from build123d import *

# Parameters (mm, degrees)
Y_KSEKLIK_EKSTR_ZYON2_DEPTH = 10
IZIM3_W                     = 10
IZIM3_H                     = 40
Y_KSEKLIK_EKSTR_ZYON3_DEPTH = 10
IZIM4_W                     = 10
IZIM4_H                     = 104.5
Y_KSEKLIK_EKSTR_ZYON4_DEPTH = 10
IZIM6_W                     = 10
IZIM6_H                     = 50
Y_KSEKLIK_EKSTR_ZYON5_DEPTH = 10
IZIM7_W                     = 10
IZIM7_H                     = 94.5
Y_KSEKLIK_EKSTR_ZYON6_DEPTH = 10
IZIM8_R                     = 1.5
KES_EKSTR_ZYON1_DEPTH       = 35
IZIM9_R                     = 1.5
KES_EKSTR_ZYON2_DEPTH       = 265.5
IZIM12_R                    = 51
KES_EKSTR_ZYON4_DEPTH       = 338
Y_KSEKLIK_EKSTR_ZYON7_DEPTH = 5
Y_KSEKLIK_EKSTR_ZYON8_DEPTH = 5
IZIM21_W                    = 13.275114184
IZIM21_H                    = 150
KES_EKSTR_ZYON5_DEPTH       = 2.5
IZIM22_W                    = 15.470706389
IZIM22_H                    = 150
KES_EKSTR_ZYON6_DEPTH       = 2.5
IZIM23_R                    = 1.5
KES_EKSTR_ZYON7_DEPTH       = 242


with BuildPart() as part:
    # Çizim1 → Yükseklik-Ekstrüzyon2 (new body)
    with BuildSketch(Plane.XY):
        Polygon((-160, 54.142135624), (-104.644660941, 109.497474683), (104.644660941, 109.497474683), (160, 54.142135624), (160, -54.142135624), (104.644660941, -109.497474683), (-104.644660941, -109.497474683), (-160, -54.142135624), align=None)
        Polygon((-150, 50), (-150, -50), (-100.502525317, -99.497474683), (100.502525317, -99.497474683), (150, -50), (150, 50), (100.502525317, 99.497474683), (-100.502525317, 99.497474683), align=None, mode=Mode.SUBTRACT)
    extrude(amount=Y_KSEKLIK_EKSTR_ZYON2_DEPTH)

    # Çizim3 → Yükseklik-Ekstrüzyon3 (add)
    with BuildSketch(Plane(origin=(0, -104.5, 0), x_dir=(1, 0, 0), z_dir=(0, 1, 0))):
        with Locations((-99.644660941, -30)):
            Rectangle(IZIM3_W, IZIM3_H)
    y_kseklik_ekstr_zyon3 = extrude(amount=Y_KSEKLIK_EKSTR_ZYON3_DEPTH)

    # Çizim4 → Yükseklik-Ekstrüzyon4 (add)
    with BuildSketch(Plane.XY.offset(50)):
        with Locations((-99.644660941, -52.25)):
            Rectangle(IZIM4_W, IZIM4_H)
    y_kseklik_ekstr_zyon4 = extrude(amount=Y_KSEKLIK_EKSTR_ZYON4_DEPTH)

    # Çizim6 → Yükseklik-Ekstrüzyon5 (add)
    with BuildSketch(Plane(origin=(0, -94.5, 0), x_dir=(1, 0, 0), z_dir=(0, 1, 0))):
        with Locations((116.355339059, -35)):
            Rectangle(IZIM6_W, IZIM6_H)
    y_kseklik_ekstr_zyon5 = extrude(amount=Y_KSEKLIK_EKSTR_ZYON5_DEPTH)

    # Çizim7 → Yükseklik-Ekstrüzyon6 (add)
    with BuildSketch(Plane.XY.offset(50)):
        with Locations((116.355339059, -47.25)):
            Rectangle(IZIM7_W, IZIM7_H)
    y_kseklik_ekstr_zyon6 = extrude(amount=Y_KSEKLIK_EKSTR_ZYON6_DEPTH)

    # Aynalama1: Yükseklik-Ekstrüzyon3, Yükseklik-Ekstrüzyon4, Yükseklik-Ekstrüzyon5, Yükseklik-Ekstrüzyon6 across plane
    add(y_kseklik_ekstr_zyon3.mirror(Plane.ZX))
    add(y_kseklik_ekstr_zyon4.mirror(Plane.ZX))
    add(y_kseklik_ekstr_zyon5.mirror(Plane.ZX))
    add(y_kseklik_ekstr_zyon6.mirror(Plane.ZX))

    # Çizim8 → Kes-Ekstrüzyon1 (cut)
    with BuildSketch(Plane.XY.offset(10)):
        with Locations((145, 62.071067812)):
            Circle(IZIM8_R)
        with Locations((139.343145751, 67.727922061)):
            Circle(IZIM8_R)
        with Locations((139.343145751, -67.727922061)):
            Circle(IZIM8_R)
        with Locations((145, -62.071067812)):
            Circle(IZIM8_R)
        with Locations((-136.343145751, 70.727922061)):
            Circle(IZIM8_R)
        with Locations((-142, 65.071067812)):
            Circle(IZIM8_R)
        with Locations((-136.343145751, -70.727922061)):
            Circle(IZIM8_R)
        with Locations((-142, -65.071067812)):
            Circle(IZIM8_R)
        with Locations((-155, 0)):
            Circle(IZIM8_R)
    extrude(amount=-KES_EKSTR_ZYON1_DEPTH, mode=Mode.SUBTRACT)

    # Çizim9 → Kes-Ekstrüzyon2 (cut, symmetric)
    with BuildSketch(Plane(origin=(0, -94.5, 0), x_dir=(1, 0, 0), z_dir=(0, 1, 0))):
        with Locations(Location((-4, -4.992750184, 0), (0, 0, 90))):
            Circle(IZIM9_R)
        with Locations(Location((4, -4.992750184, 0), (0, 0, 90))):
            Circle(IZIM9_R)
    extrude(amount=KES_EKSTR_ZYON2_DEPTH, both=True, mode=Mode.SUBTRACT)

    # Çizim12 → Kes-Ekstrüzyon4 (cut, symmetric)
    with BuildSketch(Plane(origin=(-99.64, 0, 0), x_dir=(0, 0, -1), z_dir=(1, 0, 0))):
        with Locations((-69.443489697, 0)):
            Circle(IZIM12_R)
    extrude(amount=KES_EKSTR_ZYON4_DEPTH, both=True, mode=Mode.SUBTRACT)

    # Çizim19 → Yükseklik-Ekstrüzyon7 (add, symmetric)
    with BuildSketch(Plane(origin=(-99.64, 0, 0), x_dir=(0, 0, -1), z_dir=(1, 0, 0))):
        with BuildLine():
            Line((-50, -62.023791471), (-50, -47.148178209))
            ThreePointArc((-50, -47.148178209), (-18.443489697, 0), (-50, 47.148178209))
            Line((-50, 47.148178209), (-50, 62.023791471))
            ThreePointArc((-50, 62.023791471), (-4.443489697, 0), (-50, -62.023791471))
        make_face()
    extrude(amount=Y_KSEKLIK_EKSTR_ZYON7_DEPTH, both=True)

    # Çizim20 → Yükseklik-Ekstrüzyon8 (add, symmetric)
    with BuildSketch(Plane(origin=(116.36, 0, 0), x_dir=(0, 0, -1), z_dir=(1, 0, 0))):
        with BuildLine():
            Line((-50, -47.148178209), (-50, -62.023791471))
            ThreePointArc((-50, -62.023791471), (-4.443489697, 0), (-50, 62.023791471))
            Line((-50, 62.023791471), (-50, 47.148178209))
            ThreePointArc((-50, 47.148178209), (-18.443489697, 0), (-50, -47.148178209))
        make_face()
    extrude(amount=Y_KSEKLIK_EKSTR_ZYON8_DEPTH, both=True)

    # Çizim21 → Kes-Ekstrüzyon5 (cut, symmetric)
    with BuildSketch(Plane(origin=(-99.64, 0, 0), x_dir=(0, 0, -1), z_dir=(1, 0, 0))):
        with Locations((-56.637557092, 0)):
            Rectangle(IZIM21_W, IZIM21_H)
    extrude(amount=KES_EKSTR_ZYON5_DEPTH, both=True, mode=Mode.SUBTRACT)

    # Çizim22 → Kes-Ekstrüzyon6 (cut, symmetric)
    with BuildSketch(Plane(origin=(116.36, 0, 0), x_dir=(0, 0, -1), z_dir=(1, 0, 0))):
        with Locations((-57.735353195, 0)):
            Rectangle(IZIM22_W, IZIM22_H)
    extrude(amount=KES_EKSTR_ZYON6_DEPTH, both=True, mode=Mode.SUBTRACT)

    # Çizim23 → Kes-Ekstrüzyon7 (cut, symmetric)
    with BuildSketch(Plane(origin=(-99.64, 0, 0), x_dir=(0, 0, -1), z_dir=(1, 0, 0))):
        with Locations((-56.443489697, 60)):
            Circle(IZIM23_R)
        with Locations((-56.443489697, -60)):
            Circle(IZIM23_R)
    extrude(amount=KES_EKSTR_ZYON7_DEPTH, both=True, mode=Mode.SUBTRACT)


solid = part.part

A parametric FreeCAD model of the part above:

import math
import FreeCAD as App
import Part
import Sketcher

doc = App.newDocument("Part")
params = doc.addObject("Spreadsheet::Sheet", "Params")
for row, (alias, value) in enumerate([
    ("sketch1_height", "100 mm"),
    ("sketch1_length", "70 mm"),
    ("pad1_length", "10 mm"),
    ("sketch2_width", "10 mm"),
    ("sketch2_height", "40 mm"),
    ("pad2_length", "10 mm"),
    ("sketch3_width", "10 mm"),
    ("sketch3_height", "104.5 mm"),
    ("pad3_length", "10 mm"),
    ("sketch4_width", "10 mm"),
    ("sketch4_height", "50 mm"),
    ("pad4_length", "10 mm"),
    ("sketch5_width", "10 mm"),
    ("sketch5_height", "94.5 mm"),
    ("pad5_length", "10 mm"),
    ("sketch6_diameter", "3 mm"),
    ("pocket1_length", "35 mm"),
    ("sketch7_diameter", "3 mm"),
    ("pocket2_length", "531 mm"),
    ("sketch8_diameter", "102 mm"),
    ("pocket3_length", "676 mm"),
    ("sketch9_radius", "65 mm"),
    ("sketch9_radius2", "51 mm"),
    ("pad6_length", "10 mm"),
    ("sketch10_radius", "65 mm"),
    ("sketch10_radius2", "51 mm"),
    ("pad7_length", "10 mm"),
    ("sketch11_width", "150 mm"),
    ("pocket4_length", "5 mm"),
    ("sketch12_width", "150 mm"),
    ("pocket5_length", "5 mm"),
    ("sketch13_diameter", "3 mm"),
    ("pocket6_length", "484 mm"),
], start=1):
    params.set(f"A{row}", alias)
    params.set(f"B{row}", "=" + value)
    params.setAlias(f"B{row}", alias)

body = doc.addObject("PartDesign::Body", "Body")

# Sketch on XY plane
sketch1 = doc.addObject("Sketcher::SketchObject", "Sketch")
body.addObject(sketch1)
sketch1.AttachmentSupport = (doc.XY_Plane, [""])
sketch1.MapMode = "FlatFace"
sketch1.addGeometry([
    Part.LineSegment(App.Vector(-104.644661, 109.497475, 0), App.Vector(-160, 54.142136, 0)),  # 0
    Part.LineSegment(App.Vector(-160, 54.142136, 0), App.Vector(-160, -54.142136, 0)),  # 1
    Part.LineSegment(App.Vector(-160, -54.142136, 0), App.Vector(-104.644661, -109.497475, 0)),  # 2
    Part.LineSegment(App.Vector(-104.644661, -109.497475, 0), App.Vector(104.644661, -109.497475, 0)),  # 3
    Part.LineSegment(App.Vector(104.644661, -109.497475, 0), App.Vector(160, -54.142136, 0)),  # 4
    Part.LineSegment(App.Vector(160, -54.142136, 0), App.Vector(160, 54.142136, 0)),  # 5
    Part.LineSegment(App.Vector(160, 54.142136, 0), App.Vector(104.644661, 109.497475, 0)),  # 6
    Part.LineSegment(App.Vector(104.644661, 109.497475, 0), App.Vector(-104.644661, 109.497475, 0)),  # 7
    Part.LineSegment(App.Vector(-150, 50, 0), App.Vector(-100.502525, 99.497475, 0)),  # 8
    Part.LineSegment(App.Vector(-100.502525, 99.497475, 0), App.Vector(100.502525, 99.497475, 0)),  # 9
    Part.LineSegment(App.Vector(100.502525, 99.497475, 0), App.Vector(150, 50, 0)),  # 10
    Part.LineSegment(App.Vector(150, 50, 0), App.Vector(150, -50, 0)),  # 11
    Part.LineSegment(App.Vector(150, -50, 0), App.Vector(100.502525, -99.497475, 0)),  # 12
    Part.LineSegment(App.Vector(100.502525, -99.497475, 0), App.Vector(-100.502525, -99.497475, 0)),  # 13
    Part.LineSegment(App.Vector(-100.502525, -99.497475, 0), App.Vector(-150, -50, 0)),  # 14
    Part.LineSegment(App.Vector(-150, -50, 0), App.Vector(-150, 50, 0)),  # 15
], False)
sketch1.addConstraint([
    Sketcher.Constraint("Coincident", 0, 2, 1, 1),
    Sketcher.Constraint("Coincident", 1, 2, 2, 1),
    Sketcher.Constraint("Coincident", 2, 2, 3, 1),
    Sketcher.Constraint("Coincident", 3, 2, 4, 1),
    Sketcher.Constraint("Coincident", 4, 2, 5, 1),
    Sketcher.Constraint("Coincident", 5, 2, 6, 1),
    Sketcher.Constraint("Coincident", 6, 2, 7, 1),
    Sketcher.Constraint("Coincident", 7, 2, 0, 1),
    Sketcher.Constraint("Coincident", 8, 2, 9, 1),
    Sketcher.Constraint("Coincident", 9, 2, 10, 1),
    Sketcher.Constraint("Coincident", 10, 2, 11, 1),
    Sketcher.Constraint("Coincident", 11, 2, 12, 1),
    Sketcher.Constraint("Coincident", 12, 2, 13, 1),
    Sketcher.Constraint("Coincident", 13, 2, 14, 1),
    Sketcher.Constraint("Coincident", 14, 2, 15, 1),
    Sketcher.Constraint("Coincident", 15, 2, 8, 1),
    Sketcher.Constraint("Vertical", 1),
    Sketcher.Constraint("Horizontal", 3),
    Sketcher.Constraint("Vertical", 5),
    Sketcher.Constraint("Horizontal", 7),
    Sketcher.Constraint("Horizontal", 9),
    Sketcher.Constraint("Vertical", 11),
    Sketcher.Constraint("Horizontal", 13),
    Sketcher.Constraint("Vertical", 15),
    Sketcher.Constraint("Symmetric", 0, 2, 4, 2, -1, 1),
    Sketcher.Constraint("Symmetric", 2, 2, 6, 2, -1, 1),
    Sketcher.Constraint("Symmetric", 8, 2, 12, 2, -1, 1),
    Sketcher.Constraint("Symmetric", 10, 2, 14, 2, -1, 1),
    Sketcher.Constraint("Perpendicular", 0, 2),
    Sketcher.Constraint("Perpendicular", 2, 4),
    Sketcher.Constraint("Perpendicular", 4, 6),
    Sketcher.Constraint("Perpendicular", 6, 8),
    Sketcher.Constraint("Perpendicular", 8, 10),
    Sketcher.Constraint("Perpendicular", 10, 12),
    Sketcher.Constraint("Perpendicular", 12, 14),
    Sketcher.Constraint("Horizontal", 1, 2, 4, 2),
    Sketcher.Constraint("Horizontal", 11, 2, 14, 2),
    Sketcher.Constraint("Vertical", 3, 2, 6, 2),
    Sketcher.Constraint("DistanceY", 11, 2, 11, 1, 100.0),
    Sketcher.Constraint("Distance", 8, 70.0),
    Sketcher.Constraint("DistanceX", 0, 2, -1, 1, 160.0),
    Sketcher.Constraint("DistanceX", -1, 1, 10, 2, 150.0),
    Sketcher.Constraint("DistanceY", 8, 2, 7, 2, 10.0),
    Sketcher.Constraint("DistanceX", 3, 1, 3, 2, 209.289322),
])
sketch1.setExpression("Constraints[38]", "Params.sketch1_height")
sketch1.setExpression("Constraints[39]", "Params.sketch1_length")
pad1 = doc.addObject("PartDesign::Pad", "Pad")
body.addObject(pad1)
pad1.Profile = sketch1
pad1.setExpression("Length", "Params.pad1_length")

# Sketch on XZ plane
sketch2 = doc.addObject("Sketcher::SketchObject", "Sketch001")
body.addObject(sketch2)
sketch2.AttachmentSupport = (doc.XZ_Plane, [""])
sketch2.MapMode = "FlatFace"
sketch2.AttachmentOffset = App.Placement(App.Vector(0, 0, 104.5), App.Rotation())
sketch2.addGeometry([
    Part.LineSegment(App.Vector(-104.644661, 10, 0), App.Vector(-104.644661, 50, 0)),
    Part.LineSegment(App.Vector(-104.644661, 50, 0), App.Vector(-94.644661, 50, 0)),
    Part.LineSegment(App.Vector(-94.644661, 50, 0), App.Vector(-94.644661, 10, 0)),
    Part.LineSegment(App.Vector(-94.644661, 10, 0), App.Vector(-104.644661, 10, 0)),
], False)
sketch2.addConstraint([
    Sketcher.Constraint("Coincident", 0, 2, 1, 1),
    Sketcher.Constraint("Coincident", 1, 2, 2, 1),
    Sketcher.Constraint("Coincident", 2, 2, 3, 1),
    Sketcher.Constraint("Coincident", 3, 2, 0, 1),
    Sketcher.Constraint("Vertical", 0),
    Sketcher.Constraint("Horizontal", 1),
    Sketcher.Constraint("Vertical", 2),
    Sketcher.Constraint("Horizontal", 3),
    Sketcher.Constraint("DistanceX", 1, 1, 1, 2, 10.0),
    Sketcher.Constraint("DistanceY", 0, 1, 0, 2, 40.0),
    Sketcher.Constraint("DistanceY", -1, 1, 0, 2, 50.0),
    Sketcher.Constraint("DistanceX", 0, 2, -1, 1, 104.644661),
])
sketch2.setExpression("Constraints[8]", "Params.sketch2_width")
sketch2.setExpression("Constraints[9]", "Params.sketch2_height")
pad2 = doc.addObject("PartDesign::Pad", "Pad001")
body.addObject(pad2)
pad2.Profile = sketch2
pad2.setExpression("Length", "Params.pad2_length")
pad2.Reversed = True

# Sketch on XY plane
sketch3 = doc.addObject("Sketcher::SketchObject", "Sketch002")
body.addObject(sketch3)
sketch3.AttachmentSupport = (doc.XY_Plane, [""])
sketch3.MapMode = "FlatFace"
sketch3.AttachmentOffset = App.Placement(App.Vector(0, 0, 50), App.Rotation())
sketch3.addGeometry([
    Part.LineSegment(App.Vector(-104.644661, 0, 0), App.Vector(-104.644661, -104.5, 0)),
    Part.LineSegment(App.Vector(-104.644661, -104.5, 0), App.Vector(-94.644661, -104.5, 0)),
    Part.LineSegment(App.Vector(-94.644661, -104.5, 0), App.Vector(-94.644661, 0, 0)),
    Part.LineSegment(App.Vector(-94.644661, 0, 0), App.Vector(-104.644661, 0, 0)),
], False)
sketch3.addConstraint([
    Sketcher.Constraint("Coincident", 0, 2, 1, 1),
    Sketcher.Constraint("Coincident", 1, 2, 2, 1),
    Sketcher.Constraint("Coincident", 2, 2, 3, 1),
    Sketcher.Constraint("Coincident", 3, 2, 0, 1),
    Sketcher.Constraint("Vertical", 0),
    Sketcher.Constraint("Horizontal", 1),
    Sketcher.Constraint("Vertical", 2),
    Sketcher.Constraint("Horizontal", 3),
    Sketcher.Constraint("PointOnObject", 2, 2, -1),
    Sketcher.Constraint("DistanceX", 1, 1, 1, 2, 10.0),
    Sketcher.Constraint("DistanceY", 0, 2, 0, 1, 104.5),
    Sketcher.Constraint("DistanceX", 0, 2, -1, 1, 104.644661),
])
sketch3.setExpression("Constraints[9]", "Params.sketch3_width")
sketch3.setExpression("Constraints[10]", "Params.sketch3_height")
pad3 = doc.addObject("PartDesign::Pad", "Pad002")
body.addObject(pad3)
pad3.Profile = sketch3
pad3.setExpression("Length", "Params.pad3_length")

# Sketch on XZ plane
sketch4 = doc.addObject("Sketcher::SketchObject", "Sketch003")
body.addObject(sketch4)
sketch4.AttachmentSupport = (doc.XZ_Plane, [""])
sketch4.MapMode = "FlatFace"
sketch4.AttachmentOffset = App.Placement(App.Vector(0, 0, 94.5), App.Rotation())
sketch4.addGeometry([
    Part.LineSegment(App.Vector(111.355339, 10, 0), App.Vector(111.355339, 60, 0)),
    Part.LineSegment(App.Vector(111.355339, 60, 0), App.Vector(121.355339, 60, 0)),
    Part.LineSegment(App.Vector(121.355339, 60, 0), App.Vector(121.355339, 10, 0)),
    Part.LineSegment(App.Vector(121.355339, 10, 0), App.Vector(111.355339, 10, 0)),
], False)
sketch4.addConstraint([
    Sketcher.Constraint("Coincident", 0, 2, 1, 1),
    Sketcher.Constraint("Coincident", 1, 2, 2, 1),
    Sketcher.Constraint("Coincident", 2, 2, 3, 1),
    Sketcher.Constraint("Coincident", 3, 2, 0, 1),
    Sketcher.Constraint("Vertical", 0),
    Sketcher.Constraint("Horizontal", 1),
    Sketcher.Constraint("Vertical", 2),
    Sketcher.Constraint("Horizontal", 3),
    Sketcher.Constraint("DistanceX", 1, 1, 1, 2, 10.0),
    Sketcher.Constraint("DistanceY", 0, 1, 0, 2, 50.0),
    Sketcher.Constraint("DistanceY", -1, 1, 0, 2, 60.0),
    Sketcher.Constraint("DistanceX", -1, 1, 0, 2, 111.355339),
])
sketch4.setExpression("Constraints[8]", "Params.sketch4_width")
sketch4.setExpression("Constraints[9]", "Params.sketch4_height")
pad4 = doc.addObject("PartDesign::Pad", "Pad003")
body.addObject(pad4)
pad4.Profile = sketch4
pad4.setExpression("Length", "Params.pad4_length")
pad4.Reversed = True

# Sketch on XY plane
sketch5 = doc.addObject("Sketcher::SketchObject", "Sketch004")
body.addObject(sketch5)
sketch5.AttachmentSupport = (doc.XY_Plane, [""])
sketch5.MapMode = "FlatFace"
sketch5.AttachmentOffset = App.Placement(App.Vector(0, 0, 50), App.Rotation())
sketch5.addGeometry([
    Part.LineSegment(App.Vector(111.355339, 0, 0), App.Vector(111.355339, -94.5, 0)),
    Part.LineSegment(App.Vector(111.355339, -94.5, 0), App.Vector(121.355339, -94.5, 0)),
    Part.LineSegment(App.Vector(121.355339, -94.5, 0), App.Vector(121.355339, 0, 0)),
    Part.LineSegment(App.Vector(121.355339, 0, 0), App.Vector(111.355339, 0, 0)),
], False)
sketch5.addConstraint([
    Sketcher.Constraint("Coincident", 0, 2, 1, 1),
    Sketcher.Constraint("Coincident", 1, 2, 2, 1),
    Sketcher.Constraint("Coincident", 2, 2, 3, 1),
    Sketcher.Constraint("Coincident", 3, 2, 0, 1),
    Sketcher.Constraint("Vertical", 0),
    Sketcher.Constraint("Horizontal", 1),
    Sketcher.Constraint("Vertical", 2),
    Sketcher.Constraint("Horizontal", 3),
    Sketcher.Constraint("PointOnObject", 2, 2, -1),
    Sketcher.Constraint("DistanceX", 1, 1, 1, 2, 10.0),
    Sketcher.Constraint("DistanceY", 0, 2, 0, 1, 94.5),
    Sketcher.Constraint("DistanceX", -1, 1, 0, 2, 111.355339),
])
sketch5.setExpression("Constraints[9]", "Params.sketch5_width")
sketch5.setExpression("Constraints[10]", "Params.sketch5_height")
pad5 = doc.addObject("PartDesign::Pad", "Pad004")
body.addObject(pad5)
pad5.Profile = sketch5
pad5.setExpression("Length", "Params.pad5_length")
doc.recompute()

mirrored = doc.addObject("PartDesign::Mirrored", "Mirrored")
body.addObject(mirrored)
mirrored.Originals = [pad2, pad3, pad4, pad5]
mirrored.MirrorPlane = (doc.XZ_Plane, [""])
body.Tip = mirrored

# Sketch on XY plane
sketch6 = doc.addObject("Sketcher::SketchObject", "Sketch005")
body.addObject(sketch6)
sketch6.AttachmentSupport = (doc.XY_Plane, [""])
sketch6.MapMode = "FlatFace"
sketch6.AttachmentOffset = App.Placement(App.Vector(0, 0, 10), App.Rotation())
sketch6.addGeometry([
    Part.Circle(App.Vector(145, 62.071068, 0), App.Vector(0, 0, 1), 1.5),  # 0
    Part.Circle(App.Vector(139.343146, 67.727922, 0), App.Vector(0, 0, 1), 1.5),  # 1
    Part.Circle(App.Vector(139.343146, -67.727922, 0), App.Vector(0, 0, 1), 1.5),  # 2
    Part.Circle(App.Vector(145, -62.071068, 0), App.Vector(0, 0, 1), 1.5),  # 3
    Part.Circle(App.Vector(-136.343146, 70.727922, 0), App.Vector(0, 0, 1), 1.5),  # 4
    Part.Circle(App.Vector(-142, 65.071068, 0), App.Vector(0, 0, 1), 1.5),  # 5
    Part.Circle(App.Vector(-136.343146, -70.727922, 0), App.Vector(0, 0, 1), 1.5),  # 6
    Part.Circle(App.Vector(-142, -65.071068, 0), App.Vector(0, 0, 1), 1.5),  # 7
    Part.Circle(App.Vector(-155, 0, 0), App.Vector(0, 0, 1), 1.5),  # 8
], False)
sketch6.addConstraint([
    Sketcher.Constraint("Equal", 0, 1),
    Sketcher.Constraint("Equal", 1, 2),
    Sketcher.Constraint("Equal", 2, 3),
    Sketcher.Constraint("Equal", 3, 4),
    Sketcher.Constraint("Equal", 4, 5),
    Sketcher.Constraint("Equal", 5, 6),
    Sketcher.Constraint("Equal", 6, 7),
    Sketcher.Constraint("Equal", 7, 8),
    Sketcher.Constraint("Symmetric", 1, 3, 2, 3, -1),
    Sketcher.Constraint("Symmetric", 0, 3, 3, 3, -1),
    Sketcher.Constraint("Symmetric", 4, 3, 6, 3, -1),
    Sketcher.Constraint("Symmetric", 5, 3, 7, 3, -1),
    Sketcher.Constraint("PointOnObject", 8, 3, -1),
    Sketcher.Constraint("Diameter", 0, 3.0),
    Sketcher.Constraint("DistanceX", -1, 1, 0, 3, 145.0),
    Sketcher.Constraint("DistanceX", 5, 3, -1, 1, 142.0),
    Sketcher.Constraint("DistanceX", 8, 3, -1, 1, 155.0),
    Sketcher.Constraint("DistanceY", 1, 3, 4, 3, 3.0),
    Sketcher.Constraint("DistanceY", 0, 3, 5, 3, 3.0),
    Sketcher.Constraint("DistanceY", 2, 3, 0, 3, 129.79899),
    Sketcher.Constraint("DistanceX", 4, 3, 1, 3, 275.686292),
    Sketcher.Constraint("DistanceY", -1, 1, 0, 3, 62.071068),
    Sketcher.Constraint("DistanceX", -1, 1, 1, 3, 139.343146),
])
sketch6.setExpression("Constraints[13]", "Params.sketch6_diameter")
pocket1 = doc.addObject("PartDesign::Pocket", "Pocket")
body.addObject(pocket1)
pocket1.Profile = sketch6
pocket1.setExpression("Length", "Params.pocket1_length")

# Sketch on XZ plane
sketch7 = doc.addObject("Sketcher::SketchObject", "Sketch006")
body.addObject(sketch7)
sketch7.AttachmentSupport = (doc.XZ_Plane, [""])
sketch7.MapMode = "FlatFace"
sketch7.AttachmentOffset = App.Placement(App.Vector(0, 0, 94.5), App.Rotation())
sketch7.addGeometry([
    Part.Circle(App.Vector(-4, 4.99275, 0), App.Vector(0, 0, 1), 1.5),
    Part.Circle(App.Vector(4, 4.99275, 0), App.Vector(0, 0, 1), 1.5),
], False)
sketch7.addConstraint([
    Sketcher.Constraint("Equal", 0, 1),
    Sketcher.Constraint("Symmetric", 0, 3, 1, 3, -2),
    Sketcher.Constraint("Diameter", 0, 3.0),
    Sketcher.Constraint("DistanceX", 0, 3, -1, 1, 4.0),
    Sketcher.Constraint("DistanceY", -1, 1, 0, 3, 4.99275),
])
sketch7.setExpression("Constraints[2]", "Params.sketch7_diameter")
pocket2 = doc.addObject("PartDesign::Pocket", "Pocket001")
body.addObject(pocket2)
pocket2.Profile = sketch7
pocket2.setExpression("Length", "Params.pocket2_length")
pocket2.Midplane = True

# Sketch on YZ plane
sketch8 = doc.addObject("Sketcher::SketchObject", "Sketch007")
body.addObject(sketch8)
sketch8.AttachmentSupport = (doc.YZ_Plane, [""])
sketch8.MapMode = "FlatFace"
sketch8.AttachmentOffset = App.Placement(App.Vector(0, 0, -99.64), App.Rotation())
sketch8.addGeometry(Part.Circle(App.Vector(0, 69.44349, 0), App.Vector(0, 0, 1), 51), False)
sketch8.addConstraint([
    Sketcher.Constraint("PointOnObject", 0, 3, -2),
    Sketcher.Constraint("Diameter", 0, 102.0),
    Sketcher.Constraint("DistanceY", -1, 1, 0, 3, 69.44349),
])
sketch8.setExpression("Constraints[1]", "Params.sketch8_diameter")
pocket3 = doc.addObject("PartDesign::Pocket", "Pocket002")
body.addObject(pocket3)
pocket3.Profile = sketch8
pocket3.setExpression("Length", "Params.pocket3_length")
pocket3.Midplane = True

# Sketch on YZ plane
sketch9 = doc.addObject("Sketcher::SketchObject", "Sketch008")
body.addObject(sketch9)
sketch9.AttachmentSupport = (doc.YZ_Plane, [""])
sketch9.MapMode = "FlatFace"
sketch9.AttachmentOffset = App.Placement(App.Vector(0, 0, -99.64), App.Rotation())
sketch9.addGeometry([
    Part.LineSegment(App.Vector(-47.148178, 50, 0), App.Vector(-62.023791, 50, 0)),
    Part.ArcOfCircle(Part.Circle(App.Vector(0, 69.44349, 0), App.Vector(0, 0, 1), 65), math.radians(-162.594607), math.radians(-17.405393)),
    Part.LineSegment(App.Vector(62.023791, 50, 0), App.Vector(47.148178, 50, 0)),
    Part.ArcOfCircle(Part.Circle(App.Vector(0, 69.44349, 0), App.Vector(0, 0, 1), 51), math.radians(-157.589184), math.radians(-22.410816)),
], False)
sketch9.addConstraint([
    Sketcher.Constraint("Coincident", 0, 2, 1, 1),
    Sketcher.Constraint("Coincident", 1, 2, 2, 1),
    Sketcher.Constraint("Coincident", 2, 2, 3, 2),
    Sketcher.Constraint("Coincident", 3, 1, 0, 1),
    Sketcher.Constraint("Horizontal", 0),
    Sketcher.Constraint("Horizontal", 2),
    Sketcher.Constraint("Coincident", 3, 3, 1, 3),
    Sketcher.Constraint("Symmetric", 0, 2, 1, 2, -2),
    Sketcher.Constraint("Radius", 1, 65.0),
    Sketcher.Constraint("Radius", 3, 51.0),
    Sketcher.Constraint("DistanceY", -1, 1, 0, 2, 50.0),
    Sketcher.Constraint("DistanceX", 0, 2, 0, 1, 14.875613),
])
sketch9.setExpression("Constraints[8]", "Params.sketch9_radius")
sketch9.setExpression("Constraints[9]", "Params.sketch9_radius2")
pad6 = doc.addObject("PartDesign::Pad", "Pad005")
body.addObject(pad6)
pad6.Profile = sketch9
pad6.setExpression("Length", "Params.pad6_length")
pad6.Midplane = True

# Sketch on YZ plane
sketch10 = doc.addObject("Sketcher::SketchObject", "Sketch009")
body.addObject(sketch10)
sketch10.AttachmentSupport = (doc.YZ_Plane, [""])
sketch10.MapMode = "FlatFace"
sketch10.AttachmentOffset = App.Placement(App.Vector(0, 0, 116.36), App.Rotation())
sketch10.addGeometry([
    Part.LineSegment(App.Vector(-47.148178, 50, 0), App.Vector(-62.023791, 50, 0)),
    Part.ArcOfCircle(Part.Circle(App.Vector(0, 69.44349, 0), App.Vector(0, 0, 1), 65), math.radians(-162.594607), math.radians(-17.405393)),
    Part.LineSegment(App.Vector(62.023791, 50, 0), App.Vector(47.148178, 50, 0)),
    Part.ArcOfCircle(Part.Circle(App.Vector(0, 69.44349, 0), App.Vector(0, 0, 1), 51), math.radians(-157.589184), math.radians(-22.410816)),
], False)
sketch10.addConstraint([
    Sketcher.Constraint("Coincident", 0, 2, 1, 1),
    Sketcher.Constraint("Coincident", 1, 2, 2, 1),
    Sketcher.Constraint("Coincident", 2, 2, 3, 2),
    Sketcher.Constraint("Coincident", 3, 1, 0, 1),
    Sketcher.Constraint("Horizontal", 0),
    Sketcher.Constraint("Horizontal", 2),
    Sketcher.Constraint("Coincident", 3, 3, 1, 3),
    Sketcher.Constraint("Symmetric", 0, 2, 1, 2, -2),
    Sketcher.Constraint("Radius", 1, 65.0),
    Sketcher.Constraint("Radius", 3, 51.0),
    Sketcher.Constraint("DistanceY", -1, 1, 0, 2, 50.0),
    Sketcher.Constraint("DistanceX", 0, 2, 0, 1, 14.875613),
])
sketch10.setExpression("Constraints[8]", "Params.sketch10_radius")
sketch10.setExpression("Constraints[9]", "Params.sketch10_radius2")
pad7 = doc.addObject("PartDesign::Pad", "Pad006")
body.addObject(pad7)
pad7.Profile = sketch10
pad7.setExpression("Length", "Params.pad7_length")
pad7.Midplane = True

# Sketch on YZ plane
sketch11 = doc.addObject("Sketcher::SketchObject", "Sketch010")
body.addObject(sketch11)
sketch11.AttachmentSupport = (doc.YZ_Plane, [""])
sketch11.MapMode = "FlatFace"
sketch11.AttachmentOffset = App.Placement(App.Vector(0, 0, -99.64), App.Rotation())
sketch11.addGeometry([
    Part.LineSegment(App.Vector(75, 63.275114, 0), App.Vector(-75, 63.275114, 0)),
    Part.LineSegment(App.Vector(-75, 63.275114, 0), App.Vector(-75, 50, 0)),
    Part.LineSegment(App.Vector(-75, 50, 0), App.Vector(75, 50, 0)),
    Part.LineSegment(App.Vector(75, 50, 0), App.Vector(75, 63.275114, 0)),
], False)
sketch11.addConstraint([
    Sketcher.Constraint("Coincident", 0, 2, 1, 1),
    Sketcher.Constraint("Coincident", 1, 2, 2, 1),
    Sketcher.Constraint("Coincident", 2, 2, 3, 1),
    Sketcher.Constraint("Coincident", 3, 2, 0, 1),
    Sketcher.Constraint("Horizontal", 0),
    Sketcher.Constraint("Vertical", 1),
    Sketcher.Constraint("Horizontal", 2),
    Sketcher.Constraint("Vertical", 3),
    Sketcher.Constraint("DistanceX", 0, 2, 0, 1, 150.0),
    Sketcher.Constraint("DistanceX", 0, 2, -1, 1, 75.0),
    Sketcher.Constraint("DistanceY", -1, 1, 1, 2, 50.0),
    Sketcher.Constraint("DistanceY", 1, 2, 1, 1, 13.275114),
])
sketch11.setExpression("Constraints[8]", "Params.sketch11_width")
pocket4 = doc.addObject("PartDesign::Pocket", "Pocket003")
body.addObject(pocket4)
pocket4.Profile = sketch11
pocket4.setExpression("Length", "Params.pocket4_length")
pocket4.Midplane = True

# Sketch on YZ plane
sketch12 = doc.addObject("Sketcher::SketchObject", "Sketch011")
body.addObject(sketch12)
sketch12.AttachmentSupport = (doc.YZ_Plane, [""])
sketch12.MapMode = "FlatFace"
sketch12.AttachmentOffset = App.Placement(App.Vector(0, 0, 116.36), App.Rotation())
sketch12.addGeometry([
    Part.LineSegment(App.Vector(75, 65.470706, 0), App.Vector(-75, 65.470706, 0)),
    Part.LineSegment(App.Vector(-75, 65.470706, 0), App.Vector(-75, 50, 0)),
    Part.LineSegment(App.Vector(-75, 50, 0), App.Vector(75, 50, 0)),
    Part.LineSegment(App.Vector(75, 50, 0), App.Vector(75, 65.470706, 0)),
], False)
sketch12.addConstraint([
    Sketcher.Constraint("Coincident", 0, 2, 1, 1),
    Sketcher.Constraint("Coincident", 1, 2, 2, 1),
    Sketcher.Constraint("Coincident", 2, 2, 3, 1),
    Sketcher.Constraint("Coincident", 3, 2, 0, 1),
    Sketcher.Constraint("Horizontal", 0),
    Sketcher.Constraint("Vertical", 1),
    Sketcher.Constraint("Horizontal", 2),
    Sketcher.Constraint("Vertical", 3),
    Sketcher.Constraint("DistanceX", 0, 2, 0, 1, 150.0),
    Sketcher.Constraint("DistanceX", 0, 2, -1, 1, 75.0),
    Sketcher.Constraint("DistanceY", -1, 1, 1, 2, 50.0),
    Sketcher.Constraint("DistanceY", 1, 2, 1, 1, 15.470706),
])
sketch12.setExpression("Constraints[8]", "Params.sketch12_width")
pocket5 = doc.addObject("PartDesign::Pocket", "Pocket004")
body.addObject(pocket5)
pocket5.Profile = sketch12
pocket5.setExpression("Length", "Params.pocket5_length")
pocket5.Midplane = True

# Sketch on YZ plane
sketch13 = doc.addObject("Sketcher::SketchObject", "Sketch012")
body.addObject(sketch13)
sketch13.AttachmentSupport = (doc.YZ_Plane, [""])
sketch13.MapMode = "FlatFace"
sketch13.AttachmentOffset = App.Placement(App.Vector(0, 0, -99.64), App.Rotation())
sketch13.addGeometry([
    Part.Circle(App.Vector(60, 56.44349, 0), App.Vector(0, 0, 1), 1.5),
    Part.Circle(App.Vector(-60, 56.44349, 0), App.Vector(0, 0, 1), 1.5),
], False)
sketch13.addConstraint([
    Sketcher.Constraint("Equal", 0, 1),
    Sketcher.Constraint("Symmetric", 0, 3, 1, 3, -2),
    Sketcher.Constraint("Diameter", 0, 3.0),
    Sketcher.Constraint("DistanceX", -1, 1, 0, 3, 60.0),
    Sketcher.Constraint("DistanceY", -1, 1, 0, 3, 56.44349),
])
sketch13.setExpression("Constraints[2]", "Params.sketch13_diameter")
pocket6 = doc.addObject("PartDesign::Pocket", "Pocket005")
body.addObject(pocket6)
pocket6.Profile = sketch13
pocket6.setExpression("Length", "Params.pocket6_length")
pocket6.Midplane = True

doc.recompute()
